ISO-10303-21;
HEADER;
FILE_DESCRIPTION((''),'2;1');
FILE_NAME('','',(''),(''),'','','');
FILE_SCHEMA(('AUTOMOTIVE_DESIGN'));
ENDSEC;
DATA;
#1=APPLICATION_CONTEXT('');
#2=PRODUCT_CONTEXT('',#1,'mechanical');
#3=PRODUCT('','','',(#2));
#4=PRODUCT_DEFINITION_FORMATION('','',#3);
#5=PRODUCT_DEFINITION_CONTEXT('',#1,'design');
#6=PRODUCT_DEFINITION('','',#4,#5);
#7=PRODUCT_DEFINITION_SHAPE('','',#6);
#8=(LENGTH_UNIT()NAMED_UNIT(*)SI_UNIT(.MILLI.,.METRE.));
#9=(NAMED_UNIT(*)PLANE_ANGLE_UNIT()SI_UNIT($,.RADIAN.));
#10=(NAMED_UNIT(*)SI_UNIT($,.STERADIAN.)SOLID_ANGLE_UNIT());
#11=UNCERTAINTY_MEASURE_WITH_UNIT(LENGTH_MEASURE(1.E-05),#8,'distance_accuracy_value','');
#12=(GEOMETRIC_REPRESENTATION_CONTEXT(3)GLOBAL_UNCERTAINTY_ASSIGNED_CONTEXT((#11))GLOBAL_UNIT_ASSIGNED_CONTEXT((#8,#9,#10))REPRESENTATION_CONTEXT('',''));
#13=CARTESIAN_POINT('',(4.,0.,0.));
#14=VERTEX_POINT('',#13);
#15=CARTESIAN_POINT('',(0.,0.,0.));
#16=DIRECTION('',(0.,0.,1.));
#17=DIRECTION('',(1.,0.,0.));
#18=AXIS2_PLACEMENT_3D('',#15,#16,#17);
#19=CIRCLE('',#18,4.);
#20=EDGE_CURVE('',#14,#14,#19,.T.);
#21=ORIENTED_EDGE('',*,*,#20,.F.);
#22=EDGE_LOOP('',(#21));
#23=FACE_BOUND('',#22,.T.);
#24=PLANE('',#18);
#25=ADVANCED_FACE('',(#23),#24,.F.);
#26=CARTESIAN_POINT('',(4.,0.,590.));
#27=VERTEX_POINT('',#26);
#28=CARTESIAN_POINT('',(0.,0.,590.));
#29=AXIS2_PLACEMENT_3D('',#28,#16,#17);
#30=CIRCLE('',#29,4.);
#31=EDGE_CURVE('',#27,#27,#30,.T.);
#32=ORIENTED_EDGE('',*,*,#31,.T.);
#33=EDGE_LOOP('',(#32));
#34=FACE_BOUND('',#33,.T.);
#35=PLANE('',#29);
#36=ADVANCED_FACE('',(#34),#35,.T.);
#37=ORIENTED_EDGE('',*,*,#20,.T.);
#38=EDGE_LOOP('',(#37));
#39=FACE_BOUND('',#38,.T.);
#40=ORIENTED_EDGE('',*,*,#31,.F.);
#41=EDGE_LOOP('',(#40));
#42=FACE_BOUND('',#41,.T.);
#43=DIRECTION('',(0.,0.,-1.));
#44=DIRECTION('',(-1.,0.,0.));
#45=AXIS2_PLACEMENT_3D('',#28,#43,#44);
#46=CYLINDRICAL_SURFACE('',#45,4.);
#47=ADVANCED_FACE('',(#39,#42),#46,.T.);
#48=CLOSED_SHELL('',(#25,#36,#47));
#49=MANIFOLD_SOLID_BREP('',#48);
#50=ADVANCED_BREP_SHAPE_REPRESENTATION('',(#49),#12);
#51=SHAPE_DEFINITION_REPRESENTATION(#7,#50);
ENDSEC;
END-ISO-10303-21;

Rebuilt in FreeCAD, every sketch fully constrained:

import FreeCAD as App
import Part
import Sketcher
Q = App.Units.Quantity

doc = App.newDocument("Part")
body = doc.addObject("PartDesign::Body", "Body")

# Sketch on XY plane
sketch1 = body.newObject("Sketcher::SketchObject", "Sketch")
sketch1.AttachmentSupport = (doc.getObject("XY_Plane"), [""])
sketch1.MapMode = "FlatFace"
sketch1.addGeometry(Part.Circle(App.Vector(0, 0, 0), App.Vector(0, 0, 1), 4), False)
sketch1.addConstraint([
    Sketcher.Constraint("Coincident", 0, 3, -1, 1),
    Sketcher.Constraint("Diameter", 0, Q("8 mm")),
])
pad1 = body.newObject("PartDesign::Pad", "Pad")
pad1.Profile = sketch1
pad1.Length = 590

doc.recompute()
